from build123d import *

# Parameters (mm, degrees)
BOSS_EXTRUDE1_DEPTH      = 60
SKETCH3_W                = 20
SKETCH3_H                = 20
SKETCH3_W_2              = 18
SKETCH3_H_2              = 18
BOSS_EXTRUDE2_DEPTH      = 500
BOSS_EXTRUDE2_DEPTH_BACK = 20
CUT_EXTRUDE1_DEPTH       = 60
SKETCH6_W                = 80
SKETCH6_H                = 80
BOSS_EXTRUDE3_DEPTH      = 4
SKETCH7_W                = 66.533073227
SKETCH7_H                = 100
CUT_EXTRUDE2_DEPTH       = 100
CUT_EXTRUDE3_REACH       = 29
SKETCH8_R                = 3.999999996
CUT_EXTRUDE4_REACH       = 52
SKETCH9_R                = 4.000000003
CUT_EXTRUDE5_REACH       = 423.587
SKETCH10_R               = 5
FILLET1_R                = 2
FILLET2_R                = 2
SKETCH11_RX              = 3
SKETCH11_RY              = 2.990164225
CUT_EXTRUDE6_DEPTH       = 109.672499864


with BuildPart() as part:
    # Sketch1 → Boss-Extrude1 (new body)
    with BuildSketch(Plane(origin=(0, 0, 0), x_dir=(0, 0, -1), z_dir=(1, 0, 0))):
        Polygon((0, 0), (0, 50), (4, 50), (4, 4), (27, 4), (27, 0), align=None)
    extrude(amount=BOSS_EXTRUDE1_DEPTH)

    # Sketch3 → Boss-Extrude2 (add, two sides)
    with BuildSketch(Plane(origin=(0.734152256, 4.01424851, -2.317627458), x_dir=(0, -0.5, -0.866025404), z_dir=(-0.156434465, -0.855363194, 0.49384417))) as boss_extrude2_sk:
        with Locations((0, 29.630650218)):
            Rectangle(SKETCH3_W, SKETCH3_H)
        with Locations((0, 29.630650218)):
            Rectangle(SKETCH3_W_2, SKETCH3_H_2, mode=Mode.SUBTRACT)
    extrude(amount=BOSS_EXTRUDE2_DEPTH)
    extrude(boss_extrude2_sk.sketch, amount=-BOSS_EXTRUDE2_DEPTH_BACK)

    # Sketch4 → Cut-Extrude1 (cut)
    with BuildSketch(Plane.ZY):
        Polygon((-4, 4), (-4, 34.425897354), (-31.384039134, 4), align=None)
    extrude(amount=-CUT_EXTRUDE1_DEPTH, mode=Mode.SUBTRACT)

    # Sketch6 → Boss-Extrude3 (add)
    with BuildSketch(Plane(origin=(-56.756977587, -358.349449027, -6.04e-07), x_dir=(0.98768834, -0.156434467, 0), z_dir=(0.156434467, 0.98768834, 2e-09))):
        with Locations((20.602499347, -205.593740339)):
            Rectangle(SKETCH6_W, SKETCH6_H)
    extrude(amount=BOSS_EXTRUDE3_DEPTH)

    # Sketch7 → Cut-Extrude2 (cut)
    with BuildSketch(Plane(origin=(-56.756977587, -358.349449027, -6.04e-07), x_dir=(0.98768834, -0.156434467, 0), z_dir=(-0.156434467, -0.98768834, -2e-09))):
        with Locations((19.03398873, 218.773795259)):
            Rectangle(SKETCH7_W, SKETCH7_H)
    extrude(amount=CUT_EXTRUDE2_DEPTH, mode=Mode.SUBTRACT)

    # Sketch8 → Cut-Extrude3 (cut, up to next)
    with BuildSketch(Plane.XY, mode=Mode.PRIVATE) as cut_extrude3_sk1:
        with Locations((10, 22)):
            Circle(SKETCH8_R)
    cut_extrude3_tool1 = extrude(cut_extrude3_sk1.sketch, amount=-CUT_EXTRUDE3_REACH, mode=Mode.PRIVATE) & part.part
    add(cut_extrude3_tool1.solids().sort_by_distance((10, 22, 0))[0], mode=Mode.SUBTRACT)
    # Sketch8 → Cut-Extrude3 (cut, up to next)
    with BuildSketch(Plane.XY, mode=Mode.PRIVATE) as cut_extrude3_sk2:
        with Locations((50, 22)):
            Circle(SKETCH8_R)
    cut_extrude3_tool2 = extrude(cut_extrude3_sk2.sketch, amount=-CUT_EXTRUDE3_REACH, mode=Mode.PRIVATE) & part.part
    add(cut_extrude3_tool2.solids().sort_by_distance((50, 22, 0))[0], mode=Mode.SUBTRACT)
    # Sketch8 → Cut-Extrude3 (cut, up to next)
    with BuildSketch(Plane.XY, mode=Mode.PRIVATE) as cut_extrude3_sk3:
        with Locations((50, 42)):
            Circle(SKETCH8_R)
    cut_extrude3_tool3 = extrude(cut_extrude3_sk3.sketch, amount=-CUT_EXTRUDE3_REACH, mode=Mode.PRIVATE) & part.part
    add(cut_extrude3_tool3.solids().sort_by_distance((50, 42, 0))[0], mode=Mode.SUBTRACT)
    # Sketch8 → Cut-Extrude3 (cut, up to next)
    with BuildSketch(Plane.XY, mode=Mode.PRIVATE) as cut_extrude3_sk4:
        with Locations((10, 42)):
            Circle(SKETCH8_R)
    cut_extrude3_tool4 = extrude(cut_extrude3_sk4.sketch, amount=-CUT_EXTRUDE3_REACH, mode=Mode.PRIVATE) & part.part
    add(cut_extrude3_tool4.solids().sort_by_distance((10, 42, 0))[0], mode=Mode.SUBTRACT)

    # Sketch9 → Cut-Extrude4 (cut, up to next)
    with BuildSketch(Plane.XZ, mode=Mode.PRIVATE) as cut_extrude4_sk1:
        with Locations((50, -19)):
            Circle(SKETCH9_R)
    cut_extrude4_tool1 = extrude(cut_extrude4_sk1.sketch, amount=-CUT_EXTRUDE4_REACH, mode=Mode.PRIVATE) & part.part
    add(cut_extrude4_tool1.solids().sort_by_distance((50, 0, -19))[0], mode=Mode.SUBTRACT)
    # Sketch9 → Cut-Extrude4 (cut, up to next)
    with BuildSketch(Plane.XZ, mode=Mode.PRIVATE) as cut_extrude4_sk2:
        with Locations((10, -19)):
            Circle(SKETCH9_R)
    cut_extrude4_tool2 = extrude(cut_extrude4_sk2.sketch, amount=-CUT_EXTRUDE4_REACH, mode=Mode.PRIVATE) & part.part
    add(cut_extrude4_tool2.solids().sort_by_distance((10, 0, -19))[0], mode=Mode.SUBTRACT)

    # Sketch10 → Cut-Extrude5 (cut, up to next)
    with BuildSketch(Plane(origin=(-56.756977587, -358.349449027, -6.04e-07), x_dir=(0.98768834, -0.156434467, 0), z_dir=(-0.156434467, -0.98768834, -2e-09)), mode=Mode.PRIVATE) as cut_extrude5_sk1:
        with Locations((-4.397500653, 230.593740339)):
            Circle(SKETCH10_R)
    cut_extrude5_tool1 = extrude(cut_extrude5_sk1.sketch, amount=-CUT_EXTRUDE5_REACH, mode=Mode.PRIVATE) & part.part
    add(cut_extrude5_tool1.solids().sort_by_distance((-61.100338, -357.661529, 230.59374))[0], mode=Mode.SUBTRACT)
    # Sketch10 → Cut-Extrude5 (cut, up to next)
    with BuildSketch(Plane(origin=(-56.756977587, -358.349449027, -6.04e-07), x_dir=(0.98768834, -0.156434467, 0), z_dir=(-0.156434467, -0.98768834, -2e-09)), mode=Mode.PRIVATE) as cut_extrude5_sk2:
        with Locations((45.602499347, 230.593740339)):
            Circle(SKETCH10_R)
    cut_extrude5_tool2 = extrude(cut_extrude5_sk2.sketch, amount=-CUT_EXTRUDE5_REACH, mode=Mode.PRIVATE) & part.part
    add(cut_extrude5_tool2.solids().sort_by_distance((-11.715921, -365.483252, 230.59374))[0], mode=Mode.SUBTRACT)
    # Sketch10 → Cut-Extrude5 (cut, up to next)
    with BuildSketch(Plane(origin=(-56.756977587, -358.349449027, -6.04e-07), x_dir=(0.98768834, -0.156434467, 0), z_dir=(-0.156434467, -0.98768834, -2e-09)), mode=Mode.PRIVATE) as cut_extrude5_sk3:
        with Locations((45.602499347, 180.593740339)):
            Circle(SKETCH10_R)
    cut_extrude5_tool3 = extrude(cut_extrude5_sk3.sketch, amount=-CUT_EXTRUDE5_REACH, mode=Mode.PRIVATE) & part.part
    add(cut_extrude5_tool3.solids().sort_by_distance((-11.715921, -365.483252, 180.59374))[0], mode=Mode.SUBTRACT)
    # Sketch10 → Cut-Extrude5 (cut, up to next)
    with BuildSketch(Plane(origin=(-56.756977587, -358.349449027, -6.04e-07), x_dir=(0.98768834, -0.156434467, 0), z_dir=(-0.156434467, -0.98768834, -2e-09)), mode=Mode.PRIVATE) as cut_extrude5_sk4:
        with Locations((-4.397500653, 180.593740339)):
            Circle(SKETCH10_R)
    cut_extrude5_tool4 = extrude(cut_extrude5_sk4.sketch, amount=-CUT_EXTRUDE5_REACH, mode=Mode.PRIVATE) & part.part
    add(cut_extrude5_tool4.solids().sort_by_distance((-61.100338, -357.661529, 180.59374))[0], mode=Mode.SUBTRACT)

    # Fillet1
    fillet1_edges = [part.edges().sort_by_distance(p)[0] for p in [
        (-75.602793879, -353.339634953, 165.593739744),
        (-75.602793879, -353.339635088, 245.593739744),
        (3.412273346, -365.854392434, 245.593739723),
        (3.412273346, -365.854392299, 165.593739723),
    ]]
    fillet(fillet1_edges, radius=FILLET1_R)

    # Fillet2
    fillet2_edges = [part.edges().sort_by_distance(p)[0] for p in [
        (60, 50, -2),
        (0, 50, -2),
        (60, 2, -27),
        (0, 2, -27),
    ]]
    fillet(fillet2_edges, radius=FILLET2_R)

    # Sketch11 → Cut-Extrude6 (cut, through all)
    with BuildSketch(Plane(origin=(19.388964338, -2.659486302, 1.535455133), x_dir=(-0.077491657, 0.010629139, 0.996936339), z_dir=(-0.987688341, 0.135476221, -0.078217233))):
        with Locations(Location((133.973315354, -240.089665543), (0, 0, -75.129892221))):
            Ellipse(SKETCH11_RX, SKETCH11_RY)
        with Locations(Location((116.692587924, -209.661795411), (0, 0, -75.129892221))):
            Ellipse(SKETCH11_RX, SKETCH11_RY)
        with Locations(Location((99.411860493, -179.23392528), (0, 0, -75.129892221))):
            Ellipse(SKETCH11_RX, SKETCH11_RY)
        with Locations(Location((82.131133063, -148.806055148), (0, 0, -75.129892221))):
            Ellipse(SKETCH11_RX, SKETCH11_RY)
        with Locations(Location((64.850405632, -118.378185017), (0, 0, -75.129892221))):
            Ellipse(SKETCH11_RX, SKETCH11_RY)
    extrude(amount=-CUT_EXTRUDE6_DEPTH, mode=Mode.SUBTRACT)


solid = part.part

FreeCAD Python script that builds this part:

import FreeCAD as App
import Part
import Sketcher

V = App.Vector


def edges_at(feature, points):
    """Names of the edges that pass closest to the given points."""
    edges = feature.Shape.Edges
    near = lambda p: min(range(len(edges)), key=lambda i: edges[i].distToShape(Part.Vertex(*p))[0])
    return sorted({f"Edge{near(p) + 1}" for p in points})

doc = App.newDocument("Part")
body = doc.addObject("PartDesign::Body", "Body")

# Sketch on YZ plane
sketch1 = body.newObject("Sketcher::SketchObject", "Sketch")
sketch1.AttachmentSupport = (doc.getObject("YZ_Plane"), [""])
sketch1.MapMode = "FlatFace"
sketch1.addGeometry(Part.LineSegment(V(50, 0, 0), V(0, 0, 0)), False)
sketch1.addGeometry(Part.LineSegment(V(0, 0, 0), V(0, -27, 0)), False)
sketch1.addGeometry(Part.LineSegment(V(0, -27, 0), V(4, -27, 0)), False)
sketch1.addGeometry(Part.LineSegment(V(4, -27, 0), V(4, -4, 0)), False)
sketch1.addGeometry(Part.LineSegment(V(4, -4, 0), V(50, -4, 0)), False)
sketch1.addGeometry(Part.LineSegment(V(50, -4, 0), V(50, 0, 0)), False)
sketch1.addConstraint(Sketcher.Constraint("Coincident", 0, 2, 1, 1))
sketch1.addConstraint(Sketcher.Constraint("Coincident", 1, 2, 2, 1))
sketch1.addConstraint(Sketcher.Constraint("Coincident", 2, 2, 3, 1))
sketch1.addConstraint(Sketcher.Constraint("Coincident", 3, 2, 4, 1))
sketch1.addConstraint(Sketcher.Constraint("Coincident", 4, 2, 5, 1))
sketch1.addConstraint(Sketcher.Constraint("Coincident", 5, 2, 0, 1))
sketch1.addConstraint(Sketcher.Constraint("Horizontal", 0))
sketch1.addConstraint(Sketcher.Constraint("Vertical", 1))
sketch1.addConstraint(Sketcher.Constraint("Horizontal", 2))
sketch1.addConstraint(Sketcher.Constraint("Vertical", 3))
sketch1.addConstraint(Sketcher.Constraint("Horizontal", 4))
sketch1.addConstraint(Sketcher.Constraint("Vertical", 5))
sketch1.addConstraint(Sketcher.Constraint("Coincident", 0, 2, -1, 1))
sketch1.addConstraint(Sketcher.Constraint("Equal", 2, 5))
sketch1.addConstraint(Sketcher.Constraint("DistanceX", 0, 2, 0, 1, 50.0))
sketch1.addConstraint(Sketcher.Constraint("DistanceX", 2, 1, 2, 2, 4.0))
sketch1.addConstraint(Sketcher.Constraint("DistanceY", 1, 2, 1, 1, 27.0))
pad1 = body.newObject("PartDesign::Pad", "Pad")
pad1.Profile = sketch1
pad1.Length = 60

# Sketch on an angled plane
sketch2 = body.newObject("Sketcher::SketchObject", "Sketch001")
sketch2.Placement = App.Placement(V(0.734152, 4.014249, -2.317627), App.Rotation(V(0, -0.5, -0.866025404), V(0.987688341, -0.135476221, 0.078217232), V(-0.156434465, -0.855363194, 0.49384417), "ZXY"))
sketch2.addGeometry(Part.LineSegment(V(-10, 39.63065, 0), V(-10, 19.63065, 0)), False)
sketch2.addGeometry(Part.LineSegment(V(-10, 19.63065, 0), V(10, 19.63065, 0)), False)
sketch2.addGeometry(Part.LineSegment(V(10, 19.63065, 0), V(10, 39.63065, 0)), False)
sketch2.addGeometry(Part.LineSegment(V(10, 39.63065, 0), V(-10, 39.63065, 0)), False)
sketch2.addGeometry(Part.LineSegment(V(9, 20.63065, 0), V(-9, 20.63065, 0)), False)
sketch2.addGeometry(Part.LineSegment(V(-9, 20.63065, 0), V(-9, 38.63065, 0)), False)
sketch2.addGeometry(Part.LineSegment(V(-9, 38.63065, 0), V(9, 38.63065, 0)), False)
sketch2.addGeometry(Part.LineSegment(V(9, 38.63065, 0), V(9, 20.63065, 0)), False)
sketch2.addConstraint(Sketcher.Constraint("Coincident", 0, 2, 1, 1))
sketch2.addConstraint(Sketcher.Constraint("Coincident", 1, 2, 2, 1))
sketch2.addConstraint(Sketcher.Constraint("Coincident", 2, 2, 3, 1))
sketch2.addConstraint(Sketcher.Constraint("Coincident", 3, 2, 0, 1))
sketch2.addConstraint(Sketcher.Constraint("Coincident", 4, 2, 5, 1))
sketch2.addConstraint(Sketcher.Constraint("Coincident", 5, 2, 6, 1))
sketch2.addConstraint(Sketcher.Constraint("Coincident", 6, 2, 7, 1))
sketch2.addConstraint(Sketcher.Constraint("Coincident", 7, 2, 4, 1))
sketch2.addConstraint(Sketcher.Constraint("Vertical", 0))
sketch2.addConstraint(Sketcher.Constraint("Horizontal", 1))
sketch2.addConstraint(Sketcher.Constraint("Vertical", 2))
sketch2.addConstraint(Sketcher.Constraint("Horizontal", 3))
sketch2.addConstraint(Sketcher.Constraint("Horizontal", 4))
sketch2.addConstraint(Sketcher.Constraint("Vertical", 5))
sketch2.addConstraint(Sketcher.Constraint("Horizontal", 6))
sketch2.addConstraint(Sketcher.Constraint("Vertical", 7))
sketch2.addConstraint(Sketcher.Constraint("Equal", 3, 0))
sketch2.addConstraint(Sketcher.Constraint("Equal", 6, 5))
sketch2.addConstraint(Sketcher.Constraint("DistanceX", 1, 1, 1, 2, 20.0))
sketch2.addConstraint(Sketcher.Constraint("DistanceX", 4, 2, 4, 1, 18.0))
sketch2.addConstraint(Sketcher.Constraint("DistanceX", 0, 2, -1, 1, 10.0))
sketch2.addConstraint(Sketcher.Constraint("DistanceX", 4, 2, -1, 1, 9.0))
sketch2.addConstraint(Sketcher.Constraint("DistanceY", 0, 2, 4, 2, 1.0))
sketch2.addConstraint(Sketcher.Constraint("DistanceY", -1, 1, 0, 2, 19.63065))
pad2 = body.newObject("PartDesign::Pad", "Pad001")
pad2.Profile = sketch2
pad2.Type = "TwoLengths"
pad2.Length = 500
pad2.Length2 = 20

# Sketch on YZ plane
sketch3 = body.newObject("Sketcher::SketchObject", "Sketch002")
sketch3.AttachmentSupport = (doc.getObject("YZ_Plane"), [""])
sketch3.MapMode = "FlatFace"
sketch3.addGeometry(Part.LineSegment(V(4, -4, 0), V(34.425897, -4, 0)), False)
sketch3.addGeometry(Part.LineSegment(V(34.425897, -4, 0), V(4, -31.384039, 0)), False)
sketch3.addGeometry(Part.LineSegment(V(4, -31.384039, 0), V(4, -4, 0)), False)
sketch3.addConstraint(Sketcher.Constraint("Coincident", 0, 2, 1, 1))
sketch3.addConstraint(Sketcher.Constraint("Coincident", 1, 2, 2, 1))
sketch3.addConstraint(Sketcher.Constraint("Coincident", 2, 2, 0, 1))
sketch3.addConstraint(Sketcher.Constraint("Horizontal", 0))
sketch3.addConstraint(Sketcher.Constraint("Vertical", 2))
sketch3.addConstraint(Sketcher.Constraint("DistanceY", 0, 2, -1, 1, 4.0))
sketch3.addConstraint(Sketcher.Constraint("DistanceX", -1, 1, 1, 2, 4.0))
sketch3.addConstraint(Sketcher.Constraint("DistanceY", 2, 1, 2, 2, 27.384039))
sketch3.addConstraint(Sketcher.Constraint("DistanceX", 0, 1, 0, 2, 30.425897))
pocket1 = body.newObject("PartDesign::Pocket", "Pocket")
pocket1.Profile = sketch3
pocket1.Length = 60
pocket1.Reversed = True

# Sketch on an angled plane
sketch4 = body.newObject("Sketcher::SketchObject", "Sketch003")
sketch4.Placement = App.Placement(V(-56.756978, -358.349449, -0.000001), App.Rotation(V(0.98768834, -0.156434467, 0), V(0, 0.000000002, -0.999999999), V(0.156434467, 0.98768834, 0.000000002), "ZXY"))
sketch4.addGeometry(Part.LineSegment(V(-19.397501, -165.59374, 0), V(-19.397501, -245.59374, 0)), False)
sketch4.addGeometry(Part.LineSegment(V(-19.397501, -245.59374, 0), V(60.602499, -245.59374, 0)), False)
sketch4.addGeometry(Part.LineSegment(V(60.602499, -245.59374, 0), V(60.602499, -165.59374, 0)), False)
sketch4.addGeometry(Part.LineSegment(V(60.602499, -165.59374, 0), V(-19.397501, -165.59374, 0)), False)
sketch4.addConstraint(Sketcher.Constraint("Coincident", 0, 2, 1, 1))
sketch4.addConstraint(Sketcher.Constraint("Coincident", 1, 2, 2, 1))
sketch4.addConstraint(Sketcher.Constraint("Coincident", 2, 2, 3, 1))
sketch4.addConstraint(Sketcher.Constraint("Coincident", 3, 2, 0, 1))
sketch4.addConstraint(Sketcher.Constraint("Vertical", 0))
sketch4.addConstraint(Sketcher.Constraint("Horizontal", 1))
sketch4.addConstraint(Sketcher.Constraint("Vertical", 2))
sketch4.addConstraint(Sketcher.Constraint("Horizontal", 3))
sketch4.addConstraint(Sketcher.Constraint("Equal", 3, 0))
sketch4.addConstraint(Sketcher.Constraint("DistanceX", 1, 1, 1, 2, 80.0))
sketch4.addConstraint(Sketcher.Constraint("DistanceX", 0, 2, -1, 1, 19.397501))
sketch4.addConstraint(Sketcher.Constraint("DistanceY", 0, 2, -1, 1, 245.59374))
pad3 = body.newObject("PartDesign::Pad", "Pad002")
pad3.Profile = sketch4
pad3.Length = 4

# Sketch on an angled plane
sketch5 = body.newObject("Sketcher::SketchObject", "Sketch004")
sketch5.Placement = App.Placement(V(-56.756978, -358.349449, -0.000001), App.Rotation(V(0.98768834, -0.156434467, 0), V(0, -0.000000002, 0.999999999), V(-0.156434467, -0.98768834, -0.000000002), "ZXY"))
sketch5.addGeometry(Part.LineSegment(V(-14.232548, 268.773795, 0), V(-14.232548, 168.773795, 0)), False)
sketch5.addGeometry(Part.LineSegment(V(-14.232548, 168.773795, 0), V(52.300525, 168.773795, 0)), False)
sketch5.addGeometry(Part.LineSegment(V(52.300525, 168.773795, 0), V(52.300525, 268.773795, 0)), False)
sketch5.addGeometry(Part.LineSegment(V(52.300525, 268.773795, 0), V(-14.232548, 268.773795, 0)), False)
sketch5.addConstraint(Sketcher.Constraint("Coincident", 0, 2, 1, 1))
sketch5.addConstraint(Sketcher.Constraint("Coincident", 1, 2, 2, 1))
sketch5.addConstraint(Sketcher.Constraint("Coincident", 2, 2, 3, 1))
sketch5.addConstraint(Sketcher.Constraint("Coincident", 3, 2, 0, 1))
sketch5.addConstraint(Sketcher.Constraint("Vertical", 0))
sketch5.addConstraint(Sketcher.Constraint("Horizontal", 1))
sketch5.addConstraint(Sketcher.Constraint("Vertical", 2))
sketch5.addConstraint(Sketcher.Constraint("Horizontal", 3))
sketch5.addConstraint(Sketcher.Constraint("DistanceY", 0, 2, 0, 1, 100.0))
sketch5.addConstraint(Sketcher.Constraint("DistanceX", 1, 1, 1, 2, 66.533073))
sketch5.addConstraint(Sketcher.Constraint("DistanceX", 0, 2, -1, 1, 14.232548))
sketch5.addConstraint(Sketcher.Constraint("DistanceY", -1, 1, 0, 2, 168.773795))
pocket2 = body.newObject("PartDesign::Pocket", "Pocket001")
pocket2.Profile = sketch5
pocket2.Length = 100
pocket2.Reversed = True

# Sketch on XY plane
sketch6 = body.newObject("Sketcher::SketchObject", "Sketch005")
sketch6.AttachmentSupport = (doc.getObject("XY_Plane"), [""])
sketch6.MapMode = "FlatFace"
sketch6.addGeometry(Part.Circle(V(10, 22, 0), V(0, 0, 1), 4), False)
sketch6.addConstraint(Sketcher.Constraint("Diameter", 0, 8.0))
sketch6.addConstraint(Sketcher.Constraint("DistanceX", -1, 1, 0, 3, 10.0))
sketch6.addConstraint(Sketcher.Constraint("DistanceY", -1, 1, 0, 3, 22.0))
pocket3 = body.newObject("PartDesign::Pocket", "Pocket002")
pocket3.Profile = sketch6
pocket3.Type = "UpToFirst"

# Sketch on XY plane
sketch7 = body.newObject("Sketcher::SketchObject", "Sketch006")
sketch7.AttachmentSupport = (doc.getObject("XY_Plane"), [""])
sketch7.MapMode = "FlatFace"
sketch7.addGeometry(Part.Circle(V(50, 22, 0), V(0, 0, 1), 4), False)
sketch7.addConstraint(Sketcher.Constraint("Diameter", 0, 8.0))
sketch7.addConstraint(Sketcher.Constraint("DistanceX", -1, 1, 0, 3, 50.0))
sketch7.addConstraint(Sketcher.Constraint("DistanceY", -1, 1, 0, 3, 22.0))
pocket4 = body.newObject("PartDesign::Pocket", "Pocket003")
pocket4.Profile = sketch7
pocket4.Type = "UpToFirst"

# Sketch on XY plane
sketch8 = body.newObject("Sketcher::SketchObject", "Sketch007")
sketch8.AttachmentSupport = (doc.getObject("XY_Plane"), [""])
sketch8.MapMode = "FlatFace"
sketch8.addGeometry(Part.Circle(V(50, 42, 0), V(0, 0, 1), 4), False)
sketch8.addConstraint(Sketcher.Constraint("Diameter", 0, 8.0))
sketch8.addConstraint(Sketcher.Constraint("DistanceX", -1, 1, 0, 3, 50.0))
sketch8.addConstraint(Sketcher.Constraint("DistanceY", -1, 1, 0, 3, 42.0))
pocket5 = body.newObject("PartDesign::Pocket", "Pocket004")
pocket5.Profile = sketch8
pocket5.Type = "UpToFirst"

# Sketch on XY plane
sketch9 = body.newObject("Sketcher::SketchObject", "Sketch008")
sketch9.AttachmentSupport = (doc.getObject("XY_Plane"), [""])
sketch9.MapMode = "FlatFace"
sketch9.addGeometry(Part.Circle(V(10, 42, 0), V(0, 0, 1), 4), False)
sketch9.addConstraint(Sketcher.Constraint("Diameter", 0, 8.0))
sketch9.addConstraint(Sketcher.Constraint("DistanceX", -1, 1, 0, 3, 10.0))
sketch9.addConstraint(Sketcher.Constraint("DistanceY", -1, 1, 0, 3, 42.0))
pocket6 = body.newObject("PartDesign::Pocket", "Pocket005")
pocket6.Profile = sketch9
pocket6.Type = "UpToFirst"

# Sketch on XZ plane
sketch10 = body.newObject("Sketcher::SketchObject", "Sketch009")
sketch10.AttachmentSupport = (doc.getObject("XZ_Plane"), [""])
sketch10.MapMode = "FlatFace"
sketch10.addGeometry(Part.Circle(V(50, -19, 0), V(0, 0, 1), 4), False)
sketch10.addConstraint(Sketcher.Constraint("Diameter", 0, 8.0))
sketch10.addConstraint(Sketcher.Constraint("DistanceX", -1, 1, 0, 3, 50.0))
sketch10.addConstraint(Sketcher.Constraint("DistanceY", 0, 3, -1, 1, 19.0))
pocket7 = body.newObject("PartDesign::Pocket", "Pocket006")
pocket7.Profile = sketch10
pocket7.Type = "UpToFirst"

# Sketch on XZ plane
sketch11 = body.newObject("Sketcher::SketchObject", "Sketch010")
sketch11.AttachmentSupport = (doc.getObject("XZ_Plane"), [""])
sketch11.MapMode = "FlatFace"
sketch11.addGeometry(Part.Circle(V(10, -19, 0), V(0, 0, 1), 4), False)
sketch11.addConstraint(Sketcher.Constraint("Diameter", 0, 8.0))
sketch11.addConstraint(Sketcher.Constraint("DistanceX", -1, 1, 0, 3, 10.0))
sketch11.addConstraint(Sketcher.Constraint("DistanceY", 0, 3, -1, 1, 19.0))
pocket8 = body.newObject("PartDesign::Pocket", "Pocket007")
pocket8.Profile = sketch11
pocket8.Type = "UpToFirst"

# Sketch on an angled plane
sketch12 = body.newObject("Sketcher::SketchObject", "Sketch011")
sketch12.Placement = App.Placement(V(-56.756978, -358.349449, -0.000001), App.Rotation(V(0.98768834, -0.156434467, 0), V(0, -0.000000002, 0.999999999), V(-0.156434467, -0.98768834, -0.000000002), "ZXY"))
sketch12.addGeometry(Part.Circle(V(-4.397501, 230.59374, 0), V(0, 0, 1), 5), False)
sketch12.addConstraint(Sketcher.Constraint("Diameter", 0, 10.0))
sketch12.addConstraint(Sketcher.Constraint("DistanceX", 0, 3, -1, 1, 4.397501))
sketch12.addConstraint(Sketcher.Constraint("DistanceY", -1, 1, 0, 3, 230.59374))
pocket9 = body.newObject("PartDesign::Pocket", "Pocket008")
pocket9.Profile = sketch12
pocket9.Type = "UpToFirst"

# Sketch on an angled plane
sketch13 = body.newObject("Sketcher::SketchObject", "Sketch012")
sketch13.Placement = App.Placement(V(-56.756978, -358.349449, -0.000001), App.Rotation(V(0.98768834, -0.156434467, 0), V(0, -0.000000002, 0.999999999), V(-0.156434467, -0.98768834, -0.000000002), "ZXY"))
sketch13.addGeometry(Part.Circle(V(45.602499, 230.59374, 0), V(0, 0, 1), 5), False)
sketch13.addConstraint(Sketcher.Constraint("Diameter", 0, 10.0))
sketch13.addConstraint(Sketcher.Constraint("DistanceX", -1, 1, 0, 3, 45.602499))
sketch13.addConstraint(Sketcher.Constraint("DistanceY", -1, 1, 0, 3, 230.59374))
pocket10 = body.newObject("PartDesign::Pocket", "Pocket009")
pocket10.Profile = sketch13
pocket10.Type = "UpToFirst"

# Sketch on an angled plane
sketch14 = body.newObject("Sketcher::SketchObject", "Sketch013")
sketch14.Placement = App.Placement(V(-56.756978, -358.349449, -0.000001), App.Rotation(V(0.98768834, -0.156434467, 0), V(0, -0.000000002, 0.999999999), V(-0.156434467, -0.98768834, -0.000000002), "ZXY"))
sketch14.addGeometry(Part.Circle(V(45.602499, 180.59374, 0), V(0, 0, 1), 5), False)
sketch14.addConstraint(Sketcher.Constraint("Diameter", 0, 10.0))
sketch14.addConstraint(Sketcher.Constraint("DistanceX", -1, 1, 0, 3, 45.602499))
sketch14.addConstraint(Sketcher.Constraint("DistanceY", -1, 1, 0, 3, 180.59374))
pocket11 = body.newObject("PartDesign::Pocket", "Pocket010")
pocket11.Profile = sketch14
pocket11.Type = "UpToFirst"

# Sketch on an angled plane
sketch15 = body.newObject("Sketcher::SketchObject", "Sketch014")
sketch15.Placement = App.Placement(V(-56.756978, -358.349449, -0.000001), App.Rotation(V(0.98768834, -0.156434467, 0), V(0, -0.000000002, 0.999999999), V(-0.156434467, -0.98768834, -0.000000002), "ZXY"))
sketch15.addGeometry(Part.Circle(V(-4.397501, 180.59374, 0), V(0, 0, 1), 5), False)
sketch15.addConstraint(Sketcher.Constraint("Diameter", 0, 10.0))
sketch15.addConstraint(Sketcher.Constraint("DistanceX", 0, 3, -1, 1, 4.397501))
sketch15.addConstraint(Sketcher.Constraint("DistanceY", -1, 1, 0, 3, 180.59374))
pocket12 = body.newObject("PartDesign::Pocket", "Pocket011")
pocket12.Profile = sketch15
pocket12.Type = "UpToFirst"
doc.recompute()

fillet = body.newObject("PartDesign::Fillet", "Fillet")
fillet.Base = (pocket12, edges_at(pocket12, [
    (-75.603, -353.34, 165.594),
    (-75.603, -353.34, 245.594),
    (3.412, -365.854, 245.594),
    (3.412, -365.854, 165.594),
]))
fillet.Radius = 2
doc.recompute()

fillet2 = body.newObject("PartDesign::Fillet", "Fillet001")
fillet2.Base = (fillet, edges_at(fillet, [
    (60, 50, -2),
    (0, 50, -2),
    (60, 2, -27),
    (0, 2, -27),
]))
fillet2.Radius = 2

# Sketch on an angled plane
sketch16 = body.newObject("Sketcher::SketchObject", "Sketch015")
sketch16.Placement = App.Placement(V(19.388964, -2.659486, 1.535455), App.Rotation(V(-0.077491657, 0.010629139, 0.996936339), V(0.13589255, 0.990723582, 0), V(-0.987688341, 0.135476221, -0.078217233), "ZXY"))
sketch16.addGeometry(Part.Ellipse(V(134.743201, -242.989196, 0), V(136.863339, -239.322304, 0), V(133.973315, -240.089666, 0)), False)
sketch16.addGeometry(Part.Ellipse(V(117.462474, -212.561326, 0), V(119.582612, -208.894434, 0), V(116.692588, -209.661796, 0)), False)
sketch16.addGeometry(Part.Ellipse(V(100.181746, -182.133456, 0), V(102.301884, -178.466564, 0), V(99.41186, -179.233925, 0)), False)
sketch16.addGeometry(Part.Ellipse(V(82.901019, -151.705586, 0), V(85.021157, -148.038694, 0), V(82.131133, -148.806055, 0)), False)
sketch16.addGeometry(Part.Ellipse(V(65.620291, -121.277715, 0), V(67.74043, -117.610823, 0), V(64.850406, -118.378185, 0)), False)
sketch16.addConstraint(Sketcher.Constraint("Block", 0))
sketch16.addConstraint(Sketcher.Constraint("Block", 1))
sketch16.addConstraint(Sketcher.Constraint("Block", 2))
sketch16.addConstraint(Sketcher.Constraint("Block", 3))
sketch16.addConstraint(Sketcher.Constraint("Block", 4))
pocket13 = body.newObject("PartDesign::Pocket", "Pocket012")
pocket13.Profile = sketch16
pocket13.Type = "ThroughAll"

doc.recompute()
